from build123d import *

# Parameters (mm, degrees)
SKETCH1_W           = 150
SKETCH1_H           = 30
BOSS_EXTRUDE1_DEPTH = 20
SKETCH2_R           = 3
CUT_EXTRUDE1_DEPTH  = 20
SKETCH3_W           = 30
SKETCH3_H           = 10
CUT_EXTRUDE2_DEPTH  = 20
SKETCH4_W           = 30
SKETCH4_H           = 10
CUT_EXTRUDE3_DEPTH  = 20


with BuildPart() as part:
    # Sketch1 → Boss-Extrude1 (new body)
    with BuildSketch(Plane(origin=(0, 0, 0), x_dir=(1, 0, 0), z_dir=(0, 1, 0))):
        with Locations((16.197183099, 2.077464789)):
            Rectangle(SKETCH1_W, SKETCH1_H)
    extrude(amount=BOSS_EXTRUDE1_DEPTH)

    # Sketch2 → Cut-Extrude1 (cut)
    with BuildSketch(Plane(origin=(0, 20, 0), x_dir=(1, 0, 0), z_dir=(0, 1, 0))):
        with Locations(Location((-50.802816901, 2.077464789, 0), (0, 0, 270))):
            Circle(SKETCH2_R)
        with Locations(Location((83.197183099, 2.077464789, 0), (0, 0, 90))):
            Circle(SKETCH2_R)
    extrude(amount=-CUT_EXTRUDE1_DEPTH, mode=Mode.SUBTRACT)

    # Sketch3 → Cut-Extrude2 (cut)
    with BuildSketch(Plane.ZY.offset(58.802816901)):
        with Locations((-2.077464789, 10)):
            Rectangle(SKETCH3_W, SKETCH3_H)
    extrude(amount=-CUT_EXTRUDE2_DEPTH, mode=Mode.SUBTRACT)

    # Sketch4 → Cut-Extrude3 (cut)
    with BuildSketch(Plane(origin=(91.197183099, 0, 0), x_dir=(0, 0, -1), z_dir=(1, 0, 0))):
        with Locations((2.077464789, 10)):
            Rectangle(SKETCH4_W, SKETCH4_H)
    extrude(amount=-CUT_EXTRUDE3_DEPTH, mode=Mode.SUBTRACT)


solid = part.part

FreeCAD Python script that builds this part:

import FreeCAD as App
import Part
import Sketcher

V = App.Vector
Q = App.Units.Quantity

doc = App.newDocument("Part")
body = doc.addObject("PartDesign::Body", "Body")

# Sketch on XZ plane
sketch1 = body.newObject("Sketcher::SketchObject", "Sketch")
sketch1.AttachmentSupport = (doc.getObject("XZ_Plane"), [""])
sketch1.MapMode = "FlatFace"
sketch1.addGeometry([
    Part.LineSegment(V(-59, -17, 0), V(-59, 13, 0)),
    Part.LineSegment(V(-59, 13, 0), V(91, 13, 0)),
    Part.LineSegment(V(91, 13, 0), V(91, -17, 0)),
    Part.LineSegment(V(91, -17, 0), V(-59, -17, 0)),
], False)
sketch1.addConstraint([
    Sketcher.Constraint("Coincident", 0, 2, 1, 1),
    Sketcher.Constraint("Coincident", 1, 2, 2, 1),
    Sketcher.Constraint("Coincident", 2, 2, 3, 1),
    Sketcher.Constraint("Coincident", 3, 2, 0, 1),
    Sketcher.Constraint("Vertical", 0),
    Sketcher.Constraint("Horizontal", 1),
    Sketcher.Constraint("Vertical", 2),
    Sketcher.Constraint("Horizontal", 3),
    Sketcher.Constraint("DistanceX", 1, 1, 1, 2, Q("150 mm")),
    Sketcher.Constraint("DistanceY", 0, 1, 0, 2, Q("30 mm")),
    Sketcher.Constraint("DistanceX", 0, 2, -1, 1, Q("58.802817 mm")),
    Sketcher.Constraint("DistanceY", -1, 1, 0, 2, Q("12.922535 mm")),
])
pad1 = body.newObject("PartDesign::Pad", "Pad")
pad1.Profile = sketch1
pad1.Length = 20
pad1.Reversed = True

# Sketch on XZ plane
sketch2 = body.newObject("Sketcher::SketchObject", "Sketch001")
sketch2.AttachmentSupport = (doc.getObject("XZ_Plane"), [""])
sketch2.MapMode = "FlatFace"
sketch2.AttachmentOffset = App.Placement(V(0, 0, -20), App.Rotation())
sketch2.addGeometry([
    Part.Circle(V(-50.8, -2.1, 0), V(0, 0, 1), 3),
    Part.Circle(V(83.2, -2.1, 0), V(0, 0, 1), 3),
], False)
sketch2.addConstraint([
    Sketcher.Constraint("Equal", 0, 1),
    Sketcher.Constraint("Horizontal", 0, 3, 1, 3),
    Sketcher.Constraint("Diameter", 0, Q("6 mm")),
    Sketcher.Constraint("DistanceX", 0, 3, 1, 3, Q("134 mm")),
    Sketcher.Constraint("DistanceX", 0, 3, -1, 1, Q("50.802817 mm")),
    Sketcher.Constraint("DistanceY", 0, 3, -1, 1, Q("2.077465 mm")),
])
pocket1 = body.newObject("PartDesign::Pocket", "Pocket")
pocket1.Profile = sketch2
pocket1.Length = 20
pocket1.Reversed = True

# Sketch on YZ plane
sketch3 = body.newObject("Sketcher::SketchObject", "Sketch002")
sketch3.AttachmentSupport = (doc.getObject("YZ_Plane"), [""])
sketch3.MapMode = "FlatFace"
sketch3.AttachmentOffset = App.Placement(V(0, 0, -58.802817), App.Rotation())
sketch3.addGeometry([
    Part.LineSegment(V(15, -17, 0), V(5, -17, 0)),
    Part.LineSegment(V(5, -17, 0), V(5, 13, 0)),
    Part.LineSegment(V(5, 13, 0), V(15, 13, 0)),
    Part.LineSegment(V(15, 13, 0), V(15, -17, 0)),
], False)
sketch3.addConstraint([
    Sketcher.Constraint("Coincident", 0, 2, 1, 1),
    Sketcher.Constraint("Coincident", 1, 2, 2, 1),
    Sketcher.Constraint("Coincident", 2, 2, 3, 1),
    Sketcher.Constraint("Coincident", 3, 2, 0, 1),
    Sketcher.Constraint("Horizontal", 0),
    Sketcher.Constraint("Vertical", 1),
    Sketcher.Constraint("Horizontal", 2),
    Sketcher.Constraint("Vertical", 3),
    Sketcher.Constraint("DistanceX", 0, 2, 0, 1, Q("10 mm")),
    Sketcher.Constraint("DistanceY", 1, 1, 1, 2, Q("30 mm")),
    Sketcher.Constraint("DistanceX", -1, 1, 0, 2, Q("5 mm")),
    Sketcher.Constraint("DistanceY", 0, 2, -1, 1, Q("17.077465 mm")),
])
pocket2 = body.newObject("PartDesign::Pocket", "Pocket001")
pocket2.Profile = sketch3
pocket2.Length = 20
pocket2.Reversed = True

# Sketch on YZ plane
sketch4 = body.newObject("Sketcher::SketchObject", "Sketch003")
sketch4.AttachmentSupport = (doc.getObject("YZ_Plane"), [""])
sketch4.MapMode = "FlatFace"
sketch4.AttachmentOffset = App.Placement(V(0, 0, 91.197183), App.Rotation())
sketch4.addGeometry([
    Part.LineSegment(V(15, 13, 0), V(5, 13, 0)),
    Part.LineSegment(V(5, 13, 0), V(5, -17, 0)),
    Part.LineSegment(V(5, -17, 0), V(15, -17, 0)),
    Part.LineSegment(V(15, -17, 0), V(15, 13, 0)),
], False)
sketch4.addConstraint([
    Sketcher.Constraint("Coincident", 0, 2, 1, 1),
    Sketcher.Constraint("Coincident", 1, 2, 2, 1),
    Sketcher.Constraint("Coincident", 2, 2, 3, 1),
    Sketcher.Constraint("Coincident", 3, 2, 0, 1),
    Sketcher.Constraint("Horizontal", 0),
    Sketcher.Constraint("Vertical", 1),
    Sketcher.Constraint("Horizontal", 2),
    Sketcher.Constraint("Vertical", 3),
    Sketcher.Constraint("DistanceX", 0, 2, 0, 1, Q("10 mm")),
    Sketcher.Constraint("DistanceY", 1, 2, 1, 1, Q("30 mm")),
    Sketcher.Constraint("DistanceX", -1, 1, 0, 2, Q("5 mm")),
    Sketcher.Constraint("DistanceY", -1, 1, 0, 2, Q("12.922535 mm")),
])
pocket3 = body.newObject("PartDesign::Pocket", "Pocket002")
pocket3.Profile = sketch4
pocket3.Length = 20

doc.recompute()
